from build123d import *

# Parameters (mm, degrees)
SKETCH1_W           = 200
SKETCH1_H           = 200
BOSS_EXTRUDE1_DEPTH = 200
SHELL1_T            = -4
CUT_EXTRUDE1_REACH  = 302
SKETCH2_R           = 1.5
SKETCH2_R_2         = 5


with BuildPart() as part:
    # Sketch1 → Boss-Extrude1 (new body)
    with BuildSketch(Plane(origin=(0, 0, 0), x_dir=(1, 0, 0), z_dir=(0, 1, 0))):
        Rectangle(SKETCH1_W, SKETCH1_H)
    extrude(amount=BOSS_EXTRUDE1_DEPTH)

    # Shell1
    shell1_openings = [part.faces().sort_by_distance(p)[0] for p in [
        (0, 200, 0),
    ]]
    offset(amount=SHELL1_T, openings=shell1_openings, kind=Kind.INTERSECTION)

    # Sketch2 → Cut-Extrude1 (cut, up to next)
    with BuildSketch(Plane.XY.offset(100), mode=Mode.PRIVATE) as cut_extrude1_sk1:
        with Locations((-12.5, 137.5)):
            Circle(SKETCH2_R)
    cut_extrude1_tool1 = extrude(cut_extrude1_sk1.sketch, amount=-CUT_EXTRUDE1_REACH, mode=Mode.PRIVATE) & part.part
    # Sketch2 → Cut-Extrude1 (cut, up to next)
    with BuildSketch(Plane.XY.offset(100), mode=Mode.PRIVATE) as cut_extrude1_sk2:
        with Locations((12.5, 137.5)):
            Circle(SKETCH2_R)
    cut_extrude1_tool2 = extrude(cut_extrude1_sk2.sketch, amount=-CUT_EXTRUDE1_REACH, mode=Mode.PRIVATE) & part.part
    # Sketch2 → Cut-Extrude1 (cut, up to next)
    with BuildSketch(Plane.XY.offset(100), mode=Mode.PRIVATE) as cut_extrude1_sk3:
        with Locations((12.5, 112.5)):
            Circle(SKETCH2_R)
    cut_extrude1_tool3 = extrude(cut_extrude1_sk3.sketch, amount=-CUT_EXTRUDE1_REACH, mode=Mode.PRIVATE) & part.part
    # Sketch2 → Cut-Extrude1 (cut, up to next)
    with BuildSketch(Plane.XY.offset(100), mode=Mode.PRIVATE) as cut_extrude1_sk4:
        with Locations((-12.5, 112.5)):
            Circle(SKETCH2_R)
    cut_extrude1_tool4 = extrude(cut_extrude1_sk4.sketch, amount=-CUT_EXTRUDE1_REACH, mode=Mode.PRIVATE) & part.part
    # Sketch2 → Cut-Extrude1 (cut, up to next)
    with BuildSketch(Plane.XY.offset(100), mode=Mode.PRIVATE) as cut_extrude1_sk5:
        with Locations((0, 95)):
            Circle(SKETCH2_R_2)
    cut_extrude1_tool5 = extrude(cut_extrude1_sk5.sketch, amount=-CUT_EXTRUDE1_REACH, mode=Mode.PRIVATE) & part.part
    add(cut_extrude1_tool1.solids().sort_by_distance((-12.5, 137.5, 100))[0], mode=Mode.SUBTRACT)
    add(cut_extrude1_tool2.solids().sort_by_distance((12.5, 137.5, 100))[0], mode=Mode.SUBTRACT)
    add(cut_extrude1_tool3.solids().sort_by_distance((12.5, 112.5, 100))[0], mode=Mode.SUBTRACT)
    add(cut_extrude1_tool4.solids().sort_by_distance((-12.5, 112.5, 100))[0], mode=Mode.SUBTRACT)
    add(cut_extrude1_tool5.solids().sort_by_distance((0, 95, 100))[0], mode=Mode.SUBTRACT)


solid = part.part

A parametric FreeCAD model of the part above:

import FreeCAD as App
import Part
import Sketcher


def faces_at(feature, points):
    """Names of the faces that lie closest to the given points."""
    faces = feature.Shape.Faces
    near = lambda p: min(range(len(faces)), key=lambda i: faces[i].distToShape(Part.Vertex(*p))[0])
    return sorted({f"Face{near(p) + 1}" for p in points})

doc = App.newDocument("Part")
body = doc.addObject("PartDesign::Body", "Body")

# Sketch on XZ plane
sketch1 = body.newObject("Sketcher::SketchObject", "Sketch")
sketch1.AttachmentSupport = (doc.getObject("XZ_Plane"), [""])
sketch1.MapMode = "FlatFace"
sketch1.addGeometry([
    Part.LineSegment(App.Vector(-100, -100, 0), App.Vector(-100, 100, 0)),
    Part.LineSegment(App.Vector(-100, 100, 0), App.Vector(100, 100, 0)),
    Part.LineSegment(App.Vector(100, 100, 0), App.Vector(100, -100, 0)),
    Part.LineSegment(App.Vector(100, -100, 0), App.Vector(-100, -100, 0)),
], False)
sketch1.addConstraint([
    Sketcher.Constraint("Coincident", 0, 2, 1, 1),
    Sketcher.Constraint("Coincident", 1, 2, 2, 1),
    Sketcher.Constraint("Coincident", 2, 2, 3, 1),
    Sketcher.Constraint("Coincident", 3, 2, 0, 1),
    Sketcher.Constraint("Vertical", 0),
    Sketcher.Constraint("Horizontal", 1),
    Sketcher.Constraint("Vertical", 2),
    Sketcher.Constraint("Horizontal", 3),
    Sketcher.Constraint("Symmetric", 0, 2, 2, 2, -1, 1),
    Sketcher.Constraint("Equal", 3, 0),
    Sketcher.Constraint("DistanceX", 1, 1, 1, 2, 200.0),
])
pad1 = body.newObject("PartDesign::Pad", "Pad")
pad1.Profile = sketch1
pad1.Length = 200
pad1.Reversed = True
doc.recompute()

thickness = body.newObject("PartDesign::Thickness", "Thickness")
thickness.Base = (pad1, faces_at(pad1, [(0, 200, 0)]))
thickness.Value = 4
thickness.Reversed = True
thickness.Join = "Intersection"

# Sketch on XY plane
sketch2 = body.newObject("Sketcher::SketchObject", "Sketch001")
sketch2.AttachmentSupport = (doc.getObject("XY_Plane"), [""])
sketch2.MapMode = "FlatFace"
sketch2.AttachmentOffset = App.Placement(App.Vector(0, 0, 100), App.Rotation())
sketch2.addGeometry(Part.Circle(App.Vector(-12.5, 137.5, 0), App.Vector(0, 0, 1), 1.5), False)
sketch2.addConstraint([
    Sketcher.Constraint("Diameter", 0, 3.0),
    Sketcher.Constraint("DistanceX", 0, 3, -1, 1, 12.5),
    Sketcher.Constraint("DistanceY", -1, 1, 0, 3, 137.5),
])
pocket1 = body.newObject("PartDesign::Pocket", "Pocket")
pocket1.Profile = sketch2
pocket1.Type = "UpToFirst"

# Sketch on XY plane
sketch3 = body.newObject("Sketcher::SketchObject", "Sketch002")
sketch3.AttachmentSupport = (doc.getObject("XY_Plane"), [""])
sketch3.MapMode = "FlatFace"
sketch3.AttachmentOffset = App.Placement(App.Vector(0, 0, 100), App.Rotation())
sketch3.addGeometry(Part.Circle(App.Vector(12.5, 137.5, 0), App.Vector(0, 0, 1), 1.5), False)
sketch3.addConstraint([
    Sketcher.Constraint("Diameter", 0, 3.0),
    Sketcher.Constraint("DistanceX", -1, 1, 0, 3, 12.5),
    Sketcher.Constraint("DistanceY", -1, 1, 0, 3, 137.5),
])
pocket2 = body.newObject("PartDesign::Pocket", "Pocket001")
pocket2.Profile = sketch3
pocket2.Type = "UpToFirst"

# Sketch on XY plane
sketch4 = body.newObject("Sketcher::SketchObject", "Sketch003")
sketch4.AttachmentSupport = (doc.getObject("XY_Plane"), [""])
sketch4.MapMode = "FlatFace"
sketch4.AttachmentOffset = App.Placement(App.Vector(0, 0, 100), App.Rotation())
sketch4.addGeometry(Part.Circle(App.Vector(12.5, 112.5, 0), App.Vector(0, 0, 1), 1.5), False)
sketch4.addConstraint([
    Sketcher.Constraint("Diameter", 0, 3.0),
    Sketcher.Constraint("DistanceX", -1, 1, 0, 3, 12.5),
    Sketcher.Constraint("DistanceY", -1, 1, 0, 3, 112.5),
])
pocket3 = body.newObject("PartDesign::Pocket", "Pocket002")
pocket3.Profile = sketch4
pocket3.Type = "UpToFirst"

# Sketch on XY plane
sketch5 = body.newObject("Sketcher::SketchObject", "Sketch004")
sketch5.AttachmentSupport = (doc.getObject("XY_Plane"), [""])
sketch5.MapMode = "FlatFace"
sketch5.AttachmentOffset = App.Placement(App.Vector(0, 0, 100), App.Rotation())
sketch5.addGeometry(Part.Circle(App.Vector(-12.5, 112.5, 0), App.Vector(0, 0, 1), 1.5), False)
sketch5.addConstraint([
    Sketcher.Constraint("Diameter", 0, 3.0),
    Sketcher.Constraint("DistanceX", 0, 3, -1, 1, 12.5),
    Sketcher.Constraint("DistanceY", -1, 1, 0, 3, 112.5),
])
pocket4 = body.newObject("PartDesign::Pocket", "Pocket003")
pocket4.Profile = sketch5
pocket4.Type = "UpToFirst"

# Sketch on XY plane
sketch6 = body.newObject("Sketcher::SketchObject", "Sketch005")
sketch6.AttachmentSupport = (doc.getObject("XY_Plane"), [""])
sketch6.MapMode = "FlatFace"
sketch6.AttachmentOffset = App.Placement(App.Vector(0, 0, 100), App.Rotation())
sketch6.addGeometry(Part.Circle(App.Vector(0, 95, 0), App.Vector(0, 0, 1), 5), False)
sketch6.addConstraint([
    Sketcher.Constraint("PointOnObject", 0, 3, -2),
    Sketcher.Constraint("Diameter", 0, 10.0),
    Sketcher.Constraint("DistanceY", -1, 1, 0, 3, 95.0),
])
pocket5 = body.newObject("PartDesign::Pocket", "Pocket004")
pocket5.Profile = sketch6
pocket5.Type = "UpToFirst"

doc.recompute()
